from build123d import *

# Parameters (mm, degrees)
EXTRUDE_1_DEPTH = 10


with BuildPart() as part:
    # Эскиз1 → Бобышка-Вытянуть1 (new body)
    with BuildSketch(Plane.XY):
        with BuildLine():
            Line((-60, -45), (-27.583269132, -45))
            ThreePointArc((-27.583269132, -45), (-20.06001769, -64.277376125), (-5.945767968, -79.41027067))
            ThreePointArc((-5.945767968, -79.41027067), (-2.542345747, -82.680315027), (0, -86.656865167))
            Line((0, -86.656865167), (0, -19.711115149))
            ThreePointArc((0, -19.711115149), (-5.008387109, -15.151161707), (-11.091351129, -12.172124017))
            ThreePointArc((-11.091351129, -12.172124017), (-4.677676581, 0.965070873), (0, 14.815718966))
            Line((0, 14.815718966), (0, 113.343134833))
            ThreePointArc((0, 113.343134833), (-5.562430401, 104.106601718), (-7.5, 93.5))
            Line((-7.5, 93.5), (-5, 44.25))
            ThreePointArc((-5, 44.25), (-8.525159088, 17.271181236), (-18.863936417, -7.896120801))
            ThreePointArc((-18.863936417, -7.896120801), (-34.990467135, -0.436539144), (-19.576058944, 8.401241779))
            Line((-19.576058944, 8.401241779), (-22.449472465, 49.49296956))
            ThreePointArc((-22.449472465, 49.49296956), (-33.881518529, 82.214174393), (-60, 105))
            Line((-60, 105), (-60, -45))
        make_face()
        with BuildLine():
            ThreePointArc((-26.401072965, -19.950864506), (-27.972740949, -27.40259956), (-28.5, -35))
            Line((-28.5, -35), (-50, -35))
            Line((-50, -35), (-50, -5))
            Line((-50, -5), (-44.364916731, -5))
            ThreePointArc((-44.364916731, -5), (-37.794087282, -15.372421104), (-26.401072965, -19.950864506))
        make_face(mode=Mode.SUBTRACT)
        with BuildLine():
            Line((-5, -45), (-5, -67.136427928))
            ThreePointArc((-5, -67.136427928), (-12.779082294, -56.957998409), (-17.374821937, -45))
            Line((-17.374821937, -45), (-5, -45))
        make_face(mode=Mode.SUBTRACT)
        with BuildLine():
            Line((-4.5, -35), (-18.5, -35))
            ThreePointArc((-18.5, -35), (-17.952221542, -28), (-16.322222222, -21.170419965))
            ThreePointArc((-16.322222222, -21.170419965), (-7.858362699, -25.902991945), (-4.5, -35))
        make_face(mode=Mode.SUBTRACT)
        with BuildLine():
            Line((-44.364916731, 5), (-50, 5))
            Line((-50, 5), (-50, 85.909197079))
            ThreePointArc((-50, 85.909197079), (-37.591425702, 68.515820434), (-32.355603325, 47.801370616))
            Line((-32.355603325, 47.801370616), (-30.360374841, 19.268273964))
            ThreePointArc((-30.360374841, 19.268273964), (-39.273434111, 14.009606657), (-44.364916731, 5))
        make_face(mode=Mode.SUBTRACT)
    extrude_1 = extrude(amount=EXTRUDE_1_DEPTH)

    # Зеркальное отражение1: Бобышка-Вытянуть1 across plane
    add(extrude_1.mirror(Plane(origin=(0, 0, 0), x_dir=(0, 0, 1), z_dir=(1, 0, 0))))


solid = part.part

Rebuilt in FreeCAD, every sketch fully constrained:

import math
import FreeCAD as App
import Part
import Sketcher

V = App.Vector
Q = App.Units.Quantity

doc = App.newDocument("Part")
body = doc.addObject("PartDesign::Body", "Body")

sketch1 = body.newObject("Sketcher::SketchObject", "Sketch")
sketch1.AttachmentSupport = (doc.getObject("XY_Plane"), [""])
sketch1.MapMode = "FlatFace"
sketch1.addGeometry([
    Part.LineSegment(V(-60, -45, 0), V(-28, -45, 0)),
    Part.ArcOfCircle(Part.Circle(V(26, -35, 0), V(0, 0, 1), 55), math.radians(-170), math.radians(-126)),
    Part.ArcOfCircle(Part.Circle(V(-18, -95, 0), V(0, 0, 1), 20), math.radians(26), math.radians(53)),
    Part.LineSegment(V(0, -87, 0), V(0, -20, 0)),
    Part.ArcOfCircle(Part.Circle(V(-19, -35, 0), V(0, 0, 1), 24), math.radians(40), math.radians(72)),
    Part.ArcOfCircle(Part.Circle(V(-110, 44, 0), V(0, 0, 1), 114), math.radians(-29.7), math.radians(-14.98)),
    Part.LineSegment(V(0, 15, 0), V(0, 113, 0)),
    Part.ArcOfCircle(Part.Circle(V(22, 94, 0), V(0, 0, 1), 30), math.radians(139), math.radians(180)),
    Part.LineSegment(V(-8, 94, 0), V(-5, 44, 0)),
    Part.ArcOfCircle(Part.Circle(V(-110, 44, 0), V(0, 0, 1), 105), math.radians(-30), math.radians(0)),
    Part.ArcOfCircle(Part.Circle(V(-25, 0, 0), V(0, 0, 1), 10), math.radians(57), math.radians(308)),
    Part.LineSegment(V(-20, 8, 0), V(-22, 49, 0)),
    Part.ArcOfCircle(Part.Circle(V(-90, 44, 0), V(0, 0, 1), 68), math.radians(4), math.radians(64)),
    Part.LineSegment(V(-60, 105, 0), V(-60, -45, 0)),
    Part.ArcOfCircle(Part.Circle(V(-25, 0, 0), V(0, 0, 1), 20), math.radians(-166), math.radians(-94)),
    Part.ArcOfCircle(Part.Circle(V(27, -35, 0), V(0, 0, 1), 55), math.radians(164.12), math.radians(180)),
    Part.LineSegment(V(-28, -35, 0), V(-50, -35, 0)),
    Part.LineSegment(V(-50, -35, 0), V(-50, -5, 0)),
    Part.LineSegment(V(-50, -5, 0), V(-44, -5, 0)),
    Part.LineSegment(V(-17, -45, 0), V(-5, -45, 0)),
    Part.LineSegment(V(-5, -45, 0), V(-5, -67, 0)),
    Part.ArcOfCircle(Part.Circle(V(26, -35, 0), V(0, 0, 1), 45), math.radians(-167), math.radians(-134)),
    Part.ArcOfCircle(Part.Circle(V(-18, -35, 0), V(0, 0, 1), 14), math.radians(0), math.radians(81)),
    Part.LineSegment(V(-4, -35, 0), V(-18, -35, 0)),
    Part.ArcOfCircle(Part.Circle(V(26, -35, 0), V(0, 0, 1), 45), math.radians(162.1), math.radians(180)),
    Part.ArcOfCircle(Part.Circle(V(-25, 0, 0), V(0, 0, 1), 20), math.radians(106), math.radians(166)),
    Part.LineSegment(V(-44, 5, 0), V(-50, 5, 0)),
    Part.LineSegment(V(-50, 5, 0), V(-50, 86, 0)),
    Part.ArcOfCircle(Part.Circle(V(-90, 44, 0), V(0, 0, 1), 58), math.radians(4), math.radians(46)),
    Part.LineSegment(V(-32, 48, 0), V(-30, 19, 0)),
], False)
sketch1.addConstraint([
    Sketcher.Constraint("Coincident", 0, 2, 1, 1),
    Sketcher.Constraint("Coincident", 1, 2, 2, 2),
    Sketcher.Constraint("Coincident", 2, 1, 3, 1),
    Sketcher.Constraint("Coincident", 3, 2, 4, 1),
    Sketcher.Constraint("Coincident", 4, 2, 5, 1),
    Sketcher.Constraint("Coincident", 5, 2, 6, 1),
    Sketcher.Constraint("Coincident", 6, 2, 7, 1),
    Sketcher.Constraint("Coincident", 7, 2, 8, 1),
    Sketcher.Constraint("Coincident", 8, 2, 9, 2),
    Sketcher.Constraint("Coincident", 9, 1, 10, 2),
    Sketcher.Constraint("Coincident", 10, 1, 11, 1),
    Sketcher.Constraint("Coincident", 11, 2, 12, 1),
    Sketcher.Constraint("Coincident", 12, 2, 13, 1),
    Sketcher.Constraint("Coincident", 13, 2, 0, 1),
    Sketcher.Constraint("Coincident", 14, 2, 15, 1),
    Sketcher.Constraint("Coincident", 15, 2, 16, 1),
    Sketcher.Constraint("Coincident", 16, 2, 17, 1),
    Sketcher.Constraint("Coincident", 17, 2, 18, 1),
    Sketcher.Constraint("Coincident", 18, 2, 14, 1),
    Sketcher.Constraint("Coincident", 19, 2, 20, 1),
    Sketcher.Constraint("Coincident", 20, 2, 21, 2),
    Sketcher.Constraint("Coincident", 21, 1, 19, 1),
    Sketcher.Constraint("Coincident", 22, 1, 23, 1),
    Sketcher.Constraint("Coincident", 23, 2, 24, 2),
    Sketcher.Constraint("Coincident", 24, 1, 22, 2),
    Sketcher.Constraint("Coincident", 25, 2, 26, 1),
    Sketcher.Constraint("Coincident", 26, 2, 27, 1),
    Sketcher.Constraint("Coincident", 27, 2, 28, 2),
    Sketcher.Constraint("Coincident", 28, 1, 29, 1),
    Sketcher.Constraint("Coincident", 29, 2, 25, 1),
    Sketcher.Constraint("Horizontal", 0),
    Sketcher.Constraint("Vertical", 3),
    Sketcher.Constraint("Vertical", 6),
    Sketcher.Constraint("Vertical", 13),
    Sketcher.Constraint("Horizontal", 16),
    Sketcher.Constraint("Vertical", 17),
    Sketcher.Constraint("Horizontal", 18),
    Sketcher.Constraint("Horizontal", 19),
    Sketcher.Constraint("Vertical", 20),
    Sketcher.Constraint("Horizontal", 23),
    Sketcher.Constraint("Horizontal", 26),
    Sketcher.Constraint("Vertical", 27),
    Sketcher.Constraint("Coincident", 9, 3, 5, 3),
    Sketcher.Constraint("Coincident", 14, 3, 10, 3),
    Sketcher.Constraint("Coincident", 15, 3, 1, 3),
    Sketcher.Constraint("Coincident", 21, 3, 1, 3),
    Sketcher.Constraint("Coincident", 22, 3, 4, 3),
    Sketcher.Constraint("Coincident", 24, 3, 1, 3),
    Sketcher.Constraint("Coincident", 25, 3, 10, 3),
    Sketcher.Constraint("Coincident", 28, 3, 12, 3),
    Sketcher.Constraint("Coincident", 23, 2, 4, 3),
    Sketcher.Constraint("Equal", 2, 14),
    Sketcher.Constraint("Equal", 1, 15),
    Sketcher.Constraint("Equal", 21, 24),
    Sketcher.Constraint("Equal", 14, 25),
    Sketcher.Constraint("Symmetric", 18, 2, 25, 2, -1),
    Sketcher.Constraint("PointOnObject", 2, 1, -2),
    Sketcher.Constraint("PointOnObject", 5, 2, -2),
    Sketcher.Constraint("Parallel", 11, 29),
    Sketcher.Constraint("Horizontal", 1, 3, 4, 3),
    Sketcher.Constraint("Horizontal", 9, 3, 12, 3),
    Sketcher.Constraint("Horizontal", 28, 3, 8, 2),
    Sketcher.Constraint("Horizontal", 24, 3, 15, 2),
    Sketcher.Constraint("Horizontal", 13, 2, 19, 2),
    Sketcher.Constraint("Vertical", 8, 2, 19, 2),
    Sketcher.Constraint("Vertical", 17, 2, 26, 2),
    Sketcher.Constraint("Radius", 1, 55.0),
    Sketcher.Constraint("Radius", 2, 20.0),
    Sketcher.Constraint("Radius", 4, 24.0),
    Sketcher.Constraint("Radius", 7, 30.0),
    Sketcher.Constraint("Radius", 9, 105.0),
    Sketcher.Constraint("Radius", 10, 10.0),
    Sketcher.Constraint("Radius", 21, 45.0),
    Sketcher.Constraint("Radius", 22, 14.0),
    Sketcher.Constraint("DistanceY", 13, 2, 13, 1, 150.0),
    Sketcher.Constraint("DistanceY", 17, 1, 17, 2, 30.0),
    Sketcher.Constraint("Angle", 11, Q("94 deg")),
    Sketcher.Constraint("Radius", 5, 113.87),
    Sketcher.Constraint("DistanceX", 16, 2, 16, 1, 21.5),
    Sketcher.Constraint("DistanceY", 1, 3, -1, 1, 35.0),
    Sketcher.Constraint("DistanceX", 5, 3, -1, 1, 110.0),
    Sketcher.Constraint("DistanceX", 10, 3, -1, 1, 25.0),
    Sketcher.Constraint("DistanceX", 12, 3, -1, 1, 90.0),
    Sketcher.Constraint("DistanceY", 0, 2, -1, 1, 45.0),
    Sketcher.Constraint("DistanceX", 12, 2, -1, 1, 60.0),
    Sketcher.Constraint("DistanceX", 16, 2, -1, 1, 50.0),
    Sketcher.Constraint("DistanceX", 7, 3, 1, 3, 4.0),
    Sketcher.Constraint("DistanceY", -1, 1, 7, 3, 93.5),
    Sketcher.Constraint("DistanceY", -1, 1, 7, 2, 93.5),
    Sketcher.Constraint("DistanceY", -1, 1, 5, 3, 44.25),
    Sketcher.Constraint("Radius", 28, 57.75369),
    Sketcher.Constraint("DistanceY", 3, 1, 3, 2, 66.94575),
    Sketcher.Constraint("DistanceX", 0, 2, 1, 2, 21.637501),
    Sketcher.Constraint("DistanceY", 28, 1, 11, 2, 1.691599),
    Sketcher.Constraint("Distance", 11, 41.19207),
])
pad1 = body.newObject("PartDesign::Pad", "Pad")
pad1.Profile = sketch1
pad1.Length = 10
doc.recompute()

mirrored = body.newObject("PartDesign::Mirrored", "Mirrored")
mirrored.Originals = [pad1]
mirrored.MirrorPlane = (doc.getObject("YZ_Plane"), [""])
body.Tip = mirrored

doc.recompute()
